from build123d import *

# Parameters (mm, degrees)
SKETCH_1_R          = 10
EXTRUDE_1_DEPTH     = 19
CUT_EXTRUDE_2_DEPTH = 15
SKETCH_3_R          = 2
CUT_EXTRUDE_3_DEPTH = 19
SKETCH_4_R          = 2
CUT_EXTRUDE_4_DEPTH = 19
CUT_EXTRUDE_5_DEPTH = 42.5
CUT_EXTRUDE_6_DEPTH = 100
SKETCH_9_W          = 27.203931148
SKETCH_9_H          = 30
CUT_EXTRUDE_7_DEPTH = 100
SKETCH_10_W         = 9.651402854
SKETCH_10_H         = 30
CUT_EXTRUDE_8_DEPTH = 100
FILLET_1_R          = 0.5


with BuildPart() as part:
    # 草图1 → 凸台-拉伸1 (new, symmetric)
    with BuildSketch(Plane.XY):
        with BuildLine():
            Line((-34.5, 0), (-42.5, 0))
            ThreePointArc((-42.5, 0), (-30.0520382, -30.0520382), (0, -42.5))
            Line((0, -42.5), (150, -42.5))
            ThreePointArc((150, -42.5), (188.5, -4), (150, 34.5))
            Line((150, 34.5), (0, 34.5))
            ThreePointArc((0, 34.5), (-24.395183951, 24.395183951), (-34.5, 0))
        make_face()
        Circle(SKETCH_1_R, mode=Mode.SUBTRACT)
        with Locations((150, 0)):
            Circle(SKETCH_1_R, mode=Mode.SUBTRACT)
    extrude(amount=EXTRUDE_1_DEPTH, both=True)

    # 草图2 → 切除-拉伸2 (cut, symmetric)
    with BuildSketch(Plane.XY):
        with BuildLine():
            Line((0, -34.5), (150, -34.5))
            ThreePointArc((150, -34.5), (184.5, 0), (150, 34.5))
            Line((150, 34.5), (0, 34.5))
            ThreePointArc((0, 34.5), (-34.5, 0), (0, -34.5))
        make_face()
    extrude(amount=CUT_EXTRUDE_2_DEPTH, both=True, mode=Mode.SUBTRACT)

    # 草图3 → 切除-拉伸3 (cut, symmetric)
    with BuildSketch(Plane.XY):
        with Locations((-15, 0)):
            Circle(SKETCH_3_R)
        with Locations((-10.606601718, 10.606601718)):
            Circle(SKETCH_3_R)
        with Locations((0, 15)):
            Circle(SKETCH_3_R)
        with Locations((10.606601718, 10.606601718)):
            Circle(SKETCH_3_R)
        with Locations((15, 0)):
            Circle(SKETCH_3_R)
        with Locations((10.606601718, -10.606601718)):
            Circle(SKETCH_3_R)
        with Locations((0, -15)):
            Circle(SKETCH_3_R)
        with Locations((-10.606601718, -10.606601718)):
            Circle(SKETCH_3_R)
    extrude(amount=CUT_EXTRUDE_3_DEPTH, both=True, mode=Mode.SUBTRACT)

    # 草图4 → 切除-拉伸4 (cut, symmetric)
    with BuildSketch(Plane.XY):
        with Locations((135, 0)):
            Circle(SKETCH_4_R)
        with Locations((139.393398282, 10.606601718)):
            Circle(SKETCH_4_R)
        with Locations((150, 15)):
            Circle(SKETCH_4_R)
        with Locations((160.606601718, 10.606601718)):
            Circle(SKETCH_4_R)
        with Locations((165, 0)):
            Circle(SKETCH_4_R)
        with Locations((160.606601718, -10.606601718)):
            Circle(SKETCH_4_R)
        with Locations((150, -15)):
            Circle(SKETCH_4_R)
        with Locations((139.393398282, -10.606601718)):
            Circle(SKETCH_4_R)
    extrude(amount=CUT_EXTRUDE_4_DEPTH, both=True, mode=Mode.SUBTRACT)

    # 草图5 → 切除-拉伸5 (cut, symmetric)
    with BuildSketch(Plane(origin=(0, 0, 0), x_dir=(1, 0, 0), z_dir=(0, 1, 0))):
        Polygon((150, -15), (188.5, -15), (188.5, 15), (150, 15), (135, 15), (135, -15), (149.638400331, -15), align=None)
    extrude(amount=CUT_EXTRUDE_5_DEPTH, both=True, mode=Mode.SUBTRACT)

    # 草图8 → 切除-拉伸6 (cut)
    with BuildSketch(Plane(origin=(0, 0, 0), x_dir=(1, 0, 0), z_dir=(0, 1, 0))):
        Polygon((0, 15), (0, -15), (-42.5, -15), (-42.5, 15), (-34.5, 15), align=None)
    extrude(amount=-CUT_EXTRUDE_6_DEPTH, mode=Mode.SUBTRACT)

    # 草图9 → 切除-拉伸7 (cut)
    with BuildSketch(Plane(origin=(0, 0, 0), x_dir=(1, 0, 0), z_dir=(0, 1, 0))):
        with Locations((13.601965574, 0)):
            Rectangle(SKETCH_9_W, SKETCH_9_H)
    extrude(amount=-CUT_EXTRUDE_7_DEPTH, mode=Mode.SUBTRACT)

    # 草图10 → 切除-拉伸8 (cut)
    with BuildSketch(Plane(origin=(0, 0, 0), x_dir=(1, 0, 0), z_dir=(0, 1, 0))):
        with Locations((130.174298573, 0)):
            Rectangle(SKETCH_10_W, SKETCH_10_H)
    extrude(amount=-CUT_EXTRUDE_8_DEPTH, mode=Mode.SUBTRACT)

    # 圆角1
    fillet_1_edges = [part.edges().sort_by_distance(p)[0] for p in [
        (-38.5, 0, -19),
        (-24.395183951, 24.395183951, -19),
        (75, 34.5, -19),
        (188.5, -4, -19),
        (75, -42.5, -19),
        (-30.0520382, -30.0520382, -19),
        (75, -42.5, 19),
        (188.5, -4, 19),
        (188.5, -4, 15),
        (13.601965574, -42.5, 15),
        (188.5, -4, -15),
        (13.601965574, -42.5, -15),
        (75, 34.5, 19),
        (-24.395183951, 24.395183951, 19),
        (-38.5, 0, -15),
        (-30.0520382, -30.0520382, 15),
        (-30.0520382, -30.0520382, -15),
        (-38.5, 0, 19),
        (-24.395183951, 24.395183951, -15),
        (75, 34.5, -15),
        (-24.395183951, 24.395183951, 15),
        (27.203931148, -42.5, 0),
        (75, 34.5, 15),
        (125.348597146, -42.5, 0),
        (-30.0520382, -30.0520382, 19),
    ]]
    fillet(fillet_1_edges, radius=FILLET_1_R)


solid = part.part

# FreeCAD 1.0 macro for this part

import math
import FreeCAD as App
import Part
import Sketcher

V = App.Vector


def edges_at(feature, points):
    """Names of the edges that pass closest to the given points."""
    edges = feature.Shape.Edges
    near = lambda p: min(range(len(edges)), key=lambda i: edges[i].distToShape(Part.Vertex(*p))[0])
    return sorted({f"Edge{near(p) + 1}" for p in points})

doc = App.newDocument("Part")
body = doc.addObject("PartDesign::Body", "Body")

# Sketch on XY plane
sketch1 = body.newObject("Sketcher::SketchObject", "Sketch")
sketch1.AttachmentSupport = (doc.getObject("XY_Plane"), [""])
sketch1.MapMode = "FlatFace"
sketch1.addGeometry([
    Part.LineSegment(V(-34, 0, 0), V(-42, 0, 0)),  # 0
    Part.ArcOfCircle(Part.Circle(V(0, 0, 0), V(0, 0, 1), 43), math.radians(-180), math.radians(-90)),  # 1
    Part.LineSegment(V(0, -42, 0), V(150, -42, 0)),  # 2
    Part.ArcOfCircle(Part.Circle(V(150, -4, 0), V(0, 0, 1), 38), math.radians(-90), math.radians(90)),  # 3
    Part.LineSegment(V(150, 34, 0), V(0, 34, 0)),  # 4
    Part.ArcOfCircle(Part.Circle(V(0, 0, 0), V(0, 0, 1), 34), math.radians(90), math.radians(180)),  # 5
    Part.Circle(V(0, 0, 0), V(0, 0, 1), 10),  # 6
    Part.Circle(V(150, 0, 0), V(0, 0, 1), 10),  # 7
], False)
sketch1.addConstraint([
    Sketcher.Constraint("Coincident", 0, 2, 1, 1),
    Sketcher.Constraint("Tangent", 1, 2, 2, 1),
    Sketcher.Constraint("Tangent", 2, 2, 3, 1),
    Sketcher.Constraint("Tangent", 3, 2, 4, 1),
    Sketcher.Constraint("Tangent", 4, 2, 5, 1),
    Sketcher.Constraint("Coincident", 5, 2, 0, 1),
    Sketcher.Constraint("Horizontal", 0),
    Sketcher.Constraint("Horizontal", 2),
    Sketcher.Constraint("Horizontal", 4),
    Sketcher.Constraint("Coincident", 1, 3, -1, 1),
    Sketcher.Constraint("Coincident", 5, 3, -1, 1),
    Sketcher.Constraint("Coincident", 6, 3, -1, 1),
    Sketcher.Constraint("Equal", 6, 7),
    Sketcher.Constraint("PointOnObject", 7, 3, -1),
    Sketcher.Constraint("PointOnObject", 0, 2, -1),
    Sketcher.Constraint("Vertical", 3, 3, 7, 3),
    Sketcher.Constraint("Diameter", 6, 20.0),
    Sketcher.Constraint("Radius", 1, 42.5),
    Sketcher.Constraint("Radius", 3, 38.5),
    Sketcher.Constraint("DistanceX", 2, 1, 2, 2, 150.0),
])
pad1 = body.newObject("PartDesign::Pad", "Pad")
pad1.Profile = sketch1
pad1.Length = 38
pad1.Midplane = True

# Sketch on XY plane
sketch2 = body.newObject("Sketcher::SketchObject", "Sketch001")
sketch2.AttachmentSupport = (doc.getObject("XY_Plane"), [""])
sketch2.MapMode = "FlatFace"
sketch2.addGeometry([
    Part.LineSegment(V(0, -34, 0), V(150, -34, 0)),
    Part.ArcOfCircle(Part.Circle(V(150, 0, 0), V(0, 0, 1), 34), math.radians(-90), math.radians(90)),
    Part.LineSegment(V(150, 34, 0), V(0, 34, 0)),
    Part.ArcOfCircle(Part.Circle(V(0, 0, 0), V(0, 0, 1), 34), math.radians(90), math.radians(270)),
], False)
sketch2.addConstraint([
    Sketcher.Constraint("Tangent", 0, 2, 1, 1),
    Sketcher.Constraint("Tangent", 1, 2, 2, 1),
    Sketcher.Constraint("Tangent", 2, 2, 3, 1),
    Sketcher.Constraint("Tangent", 3, 2, 0, 1),
    Sketcher.Constraint("Horizontal", 0),
    Sketcher.Constraint("Horizontal", 2),
    Sketcher.Constraint("Coincident", 3, 3, -1, 1),
    Sketcher.Constraint("Radius", 1, 34.5),
    Sketcher.Constraint("DistanceX", 0, 1, 0, 2, 150.0),
])
pocket1 = body.newObject("PartDesign::Pocket", "Pocket")
pocket1.Profile = sketch2
pocket1.Length = 30
pocket1.Midplane = True

# Sketch on XY plane
sketch3 = body.newObject("Sketcher::SketchObject", "Sketch002")
sketch3.AttachmentSupport = (doc.getObject("XY_Plane"), [""])
sketch3.MapMode = "FlatFace"
sketch3.addGeometry([
    Part.Circle(V(-15, 0, 0), V(0, 0, 1), 2),  # 0
    Part.Circle(V(-10.6, 10.6, 0), V(0, 0, 1), 2),  # 1
    Part.Circle(V(0, 15, 0), V(0, 0, 1), 2),  # 2
    Part.Circle(V(10.6, 10.6, 0), V(0, 0, 1), 2),  # 3
    Part.Circle(V(15, 0, 0), V(0, 0, 1), 2),  # 4
    Part.Circle(V(10.6, -10.6, 0), V(0, 0, 1), 2),  # 5
    Part.Circle(V(0, -15, 0), V(0, 0, 1), 2),  # 6
    Part.Circle(V(-10.6, -10.6, 0), V(0, 0, 1), 2),  # 7
], False)
sketch3.addConstraint([
    Sketcher.Constraint("Equal", 0, 1),
    Sketcher.Constraint("Equal", 1, 2),
    Sketcher.Constraint("Equal", 2, 3),
    Sketcher.Constraint("Equal", 3, 4),
    Sketcher.Constraint("Equal", 4, 5),
    Sketcher.Constraint("Equal", 5, 6),
    Sketcher.Constraint("Equal", 6, 7),
    Sketcher.Constraint("Symmetric", 0, 3, 4, 3, -1, 1),
    Sketcher.Constraint("Symmetric", 1, 3, 5, 3, -1, 1),
    Sketcher.Constraint("Symmetric", 2, 3, 6, 3, -1, 1),
    Sketcher.Constraint("Symmetric", 3, 3, 7, 3, -1, 1),
    Sketcher.Constraint("Symmetric", 1, 3, 3, 3, -2),
    Sketcher.Constraint("PointOnObject", 0, 3, -1),
    Sketcher.Constraint("PointOnObject", 2, 3, -2),
    Sketcher.Constraint("Diameter", 0, 4.0),
    Sketcher.Constraint("DistanceX", 0, 3, -1, 1, 15.0),
    Sketcher.Constraint("DistanceY", -1, 1, 2, 3, 15.0),
    Sketcher.Constraint("DistanceX", 1, 3, -1, 1, 10.606602),
    Sketcher.Constraint("DistanceY", -1, 1, 1, 3, 10.606602),
])
pocket2 = body.newObject("PartDesign::Pocket", "Pocket001")
pocket2.Profile = sketch3
pocket2.Length = 38
pocket2.Midplane = True

# Sketch on XY plane
sketch4 = body.newObject("Sketcher::SketchObject", "Sketch003")
sketch4.AttachmentSupport = (doc.getObject("XY_Plane"), [""])
sketch4.MapMode = "FlatFace"
sketch4.addGeometry([
    Part.Circle(V(135, 0, 0), V(0, 0, 1), 2),  # 0
    Part.Circle(V(139.4, 10.6, 0), V(0, 0, 1), 2),  # 1
    Part.Circle(V(150, 15, 0), V(0, 0, 1), 2),  # 2
    Part.Circle(V(160.6, 10.6, 0), V(0, 0, 1), 2),  # 3
    Part.Circle(V(165, 0, 0), V(0, 0, 1), 2),  # 4
    Part.Circle(V(160.6, -10.6, 0), V(0, 0, 1), 2),  # 5
    Part.Circle(V(150, -15, 0), V(0, 0, 1), 2),  # 6
    Part.Circle(V(139.4, -10.6, 0), V(0, 0, 1), 2),  # 7
], False)
sketch4.addConstraint([
    Sketcher.Constraint("Equal", 0, 1),
    Sketcher.Constraint("Equal", 1, 2),
    Sketcher.Constraint("Equal", 2, 3),
    Sketcher.Constraint("Equal", 3, 4),
    Sketcher.Constraint("Equal", 4, 5),
    Sketcher.Constraint("Equal", 5, 6),
    Sketcher.Constraint("Equal", 6, 7),
    Sketcher.Constraint("Symmetric", 3, 3, 5, 3, -1),
    Sketcher.Constraint("Symmetric", 2, 3, 6, 3, -1),
    Sketcher.Constraint("Symmetric", 1, 3, 7, 3, -1),
    Sketcher.Constraint("PointOnObject", 0, 3, -1),
    Sketcher.Constraint("PointOnObject", 4, 3, -1),
    Sketcher.Constraint("Horizontal", 1, 3, 3, 3),
    Sketcher.Constraint("Diameter", 0, 4.0),
    Sketcher.Constraint("DistanceX", -1, 1, 0, 3, 135.0),
    Sketcher.Constraint("DistanceX", -1, 1, 2, 3, 150.0),
    Sketcher.Constraint("DistanceY", -1, 1, 2, 3, 15.0),
    Sketcher.Constraint("DistanceX", -1, 1, 4, 3, 165.0),
    Sketcher.Constraint("DistanceX", -1, 1, 1, 3, 139.393398),
    Sketcher.Constraint("DistanceY", -1, 1, 1, 3, 10.606602),
    Sketcher.Constraint("DistanceX", -1, 1, 3, 3, 160.606602),
])
pocket3 = body.newObject("PartDesign::Pocket", "Pocket002")
pocket3.Profile = sketch4
pocket3.Length = 38
pocket3.Midplane = True

# Sketch on XZ plane
sketch5 = body.newObject("Sketcher::SketchObject", "Sketch004")
sketch5.AttachmentSupport = (doc.getObject("XZ_Plane"), [""])
sketch5.MapMode = "FlatFace"
sketch5.addGeometry([
    Part.LineSegment(V(188, 15, 0), V(188, -15, 0)),
    Part.LineSegment(V(188, -15, 0), V(135, -15, 0)),
    Part.LineSegment(V(135, -15, 0), V(135, 15, 0)),
    Part.LineSegment(V(135, 15, 0), V(188, 15, 0)),
], False)
sketch5.addConstraint([
    Sketcher.Constraint("Coincident", 0, 2, 1, 1),
    Sketcher.Constraint("Coincident", 1, 2, 2, 1),
    Sketcher.Constraint("Coincident", 2, 2, 3, 1),
    Sketcher.Constraint("Coincident", 3, 2, 0, 1),
    Sketcher.Constraint("Vertical", 0),
    Sketcher.Constraint("Horizontal", 1),
    Sketcher.Constraint("Vertical", 2),
    Sketcher.Constraint("Horizontal", 3),
    Sketcher.Constraint("DistanceY", 0, 2, 0, 1, 30.0),
    Sketcher.Constraint("DistanceX", 1, 2, 1, 1, 53.5),
    Sketcher.Constraint("DistanceY", 0, 2, -1, 1, 15.0),
    Sketcher.Constraint("DistanceX", -1, 1, 1, 2, 135.0),
])
pocket4 = body.newObject("PartDesign::Pocket", "Pocket003")
pocket4.Profile = sketch5
pocket4.Length = 85
pocket4.Midplane = True

# Sketch on XZ plane
sketch6 = body.newObject("Sketcher::SketchObject", "Sketch005")
sketch6.AttachmentSupport = (doc.getObject("XZ_Plane"), [""])
sketch6.MapMode = "FlatFace"
sketch6.addGeometry([
    Part.LineSegment(V(0, 15, 0), V(0, -15, 0)),
    Part.LineSegment(V(0, -15, 0), V(-42, -15, 0)),
    Part.LineSegment(V(-42, -15, 0), V(-42, 15, 0)),
    Part.LineSegment(V(-42, 15, 0), V(0, 15, 0)),
], False)
sketch6.addConstraint([
    Sketcher.Constraint("Coincident", 0, 2, 1, 1),
    Sketcher.Constraint("Coincident", 1, 2, 2, 1),
    Sketcher.Constraint("Coincident", 2, 2, 3, 1),
    Sketcher.Constraint("Coincident", 3, 2, 0, 1),
    Sketcher.Constraint("Vertical", 0),
    Sketcher.Constraint("Horizontal", 1),
    Sketcher.Constraint("Vertical", 2),
    Sketcher.Constraint("Horizontal", 3),
    Sketcher.Constraint("Symmetric", 0, 2, 3, 2, -1, 1),
    Sketcher.Constraint("DistanceY", 0, 2, 0, 1, 30.0),
    Sketcher.Constraint("DistanceX", 1, 2, 1, 1, 42.5),
])
pocket5 = body.newObject("PartDesign::Pocket", "Pocket004")
pocket5.Profile = sketch6
pocket5.Length = 100
pocket5.Reversed = True

# Sketch on XZ plane
sketch7 = body.newObject("Sketcher::SketchObject", "Sketch006")
sketch7.AttachmentSupport = (doc.getObject("XZ_Plane"), [""])
sketch7.MapMode = "FlatFace"
sketch7.addGeometry([
    Part.LineSegment(V(0, -15, 0), V(0, 15, 0)),
    Part.LineSegment(V(0, 15, 0), V(27, 15, 0)),
    Part.LineSegment(V(27, 15, 0), V(27, -15, 0)),
    Part.LineSegment(V(27, -15, 0), V(0, -15, 0)),
], False)
sketch7.addConstraint([
    Sketcher.Constraint("Coincident", 0, 2, 1, 1),
    Sketcher.Constraint("Coincident", 1, 2, 2, 1),
    Sketcher.Constraint("Coincident", 2, 2, 3, 1),
    Sketcher.Constraint("Coincident", 3, 2, 0, 1),
    Sketcher.Constraint("Vertical", 0),
    Sketcher.Constraint("Horizontal", 1),
    Sketcher.Constraint("Vertical", 2),
    Sketcher.Constraint("Horizontal", 3),
    Sketcher.Constraint("Symmetric", 0, 2, 3, 2, -1, 1),
    Sketcher.Constraint("DistanceY", 0, 1, 0, 2, 30.0),
    Sketcher.Constraint("DistanceX", 1, 1, 1, 2, 27.203931),
])
pocket6 = body.newObject("PartDesign::Pocket", "Pocket005")
pocket6.Profile = sketch7
pocket6.Length = 100
pocket6.Reversed = True

# Sketch on XZ plane
sketch8 = body.newObject("Sketcher::SketchObject", "Sketch007")
sketch8.AttachmentSupport = (doc.getObject("XZ_Plane"), [""])
sketch8.MapMode = "FlatFace"
sketch8.addGeometry([
    Part.LineSegment(V(125, -15, 0), V(125, 15, 0)),
    Part.LineSegment(V(125, 15, 0), V(135, 15, 0)),
    Part.LineSegment(V(135, 15, 0), V(135, -15, 0)),
    Part.LineSegment(V(135, -15, 0), V(125, -15, 0)),
], False)
sketch8.addConstraint([
    Sketcher.Constraint("Coincident", 0, 2, 1, 1),
    Sketcher.Constraint("Coincident", 1, 2, 2, 1),
    Sketcher.Constraint("Coincident", 2, 2, 3, 1),
    Sketcher.Constraint("Coincident", 3, 2, 0, 1),
    Sketcher.Constraint("Vertical", 0),
    Sketcher.Constraint("Horizontal", 1),
    Sketcher.Constraint("Vertical", 2),
    Sketcher.Constraint("Horizontal", 3),
    Sketcher.Constraint("DistanceY", 0, 1, 0, 2, 30.0),
    Sketcher.Constraint("DistanceY", -1, 1, 0, 2, 15.0),
    Sketcher.Constraint("DistanceX", -1, 1, 1, 2, 135.0),
    Sketcher.Constraint("DistanceX", 1, 1, 1, 2, 9.651403),
])
pocket7 = body.newObject("PartDesign::Pocket", "Pocket006")
pocket7.Profile = sketch8
pocket7.Length = 100
pocket7.Reversed = True
doc.recompute()

fillet = body.newObject("PartDesign::Fillet", "Fillet")
fillet.Base = (pocket7, edges_at(pocket7, [
    (-38.5, 0, -19),
    (-24.395, 24.395, -19),
    (75, 34.5, -19),
    (188.5, -4, -19),
    (75, -42.5, -19),
    (-30.052, -30.052, -19),
    (75, -42.5, 19),
    (188.5, -4, 19),
    (188.5, -4, 15),
    (13.602, -42.5, 15),
    (188.5, -4, -15),
    (13.602, -42.5, -15),
    (75, 34.5, 19),
    (-24.395, 24.395, 19),
    (-38.5, 0, -15),
    (-30.052, -30.052, 15),
    (-30.052, -30.052, -15),
    (-38.5, 0, 19),
    (-24.395, 24.395, -15),
    (75, 34.5, -15),
    (-24.395, 24.395, 15),
    (27.204, -42.5, 0),
    (75, 34.5, 15),
    (125.349, -42.5, 0),
    (-30.052, -30.052, 19),
]))
fillet.Radius = 0.5

doc.recompute()
